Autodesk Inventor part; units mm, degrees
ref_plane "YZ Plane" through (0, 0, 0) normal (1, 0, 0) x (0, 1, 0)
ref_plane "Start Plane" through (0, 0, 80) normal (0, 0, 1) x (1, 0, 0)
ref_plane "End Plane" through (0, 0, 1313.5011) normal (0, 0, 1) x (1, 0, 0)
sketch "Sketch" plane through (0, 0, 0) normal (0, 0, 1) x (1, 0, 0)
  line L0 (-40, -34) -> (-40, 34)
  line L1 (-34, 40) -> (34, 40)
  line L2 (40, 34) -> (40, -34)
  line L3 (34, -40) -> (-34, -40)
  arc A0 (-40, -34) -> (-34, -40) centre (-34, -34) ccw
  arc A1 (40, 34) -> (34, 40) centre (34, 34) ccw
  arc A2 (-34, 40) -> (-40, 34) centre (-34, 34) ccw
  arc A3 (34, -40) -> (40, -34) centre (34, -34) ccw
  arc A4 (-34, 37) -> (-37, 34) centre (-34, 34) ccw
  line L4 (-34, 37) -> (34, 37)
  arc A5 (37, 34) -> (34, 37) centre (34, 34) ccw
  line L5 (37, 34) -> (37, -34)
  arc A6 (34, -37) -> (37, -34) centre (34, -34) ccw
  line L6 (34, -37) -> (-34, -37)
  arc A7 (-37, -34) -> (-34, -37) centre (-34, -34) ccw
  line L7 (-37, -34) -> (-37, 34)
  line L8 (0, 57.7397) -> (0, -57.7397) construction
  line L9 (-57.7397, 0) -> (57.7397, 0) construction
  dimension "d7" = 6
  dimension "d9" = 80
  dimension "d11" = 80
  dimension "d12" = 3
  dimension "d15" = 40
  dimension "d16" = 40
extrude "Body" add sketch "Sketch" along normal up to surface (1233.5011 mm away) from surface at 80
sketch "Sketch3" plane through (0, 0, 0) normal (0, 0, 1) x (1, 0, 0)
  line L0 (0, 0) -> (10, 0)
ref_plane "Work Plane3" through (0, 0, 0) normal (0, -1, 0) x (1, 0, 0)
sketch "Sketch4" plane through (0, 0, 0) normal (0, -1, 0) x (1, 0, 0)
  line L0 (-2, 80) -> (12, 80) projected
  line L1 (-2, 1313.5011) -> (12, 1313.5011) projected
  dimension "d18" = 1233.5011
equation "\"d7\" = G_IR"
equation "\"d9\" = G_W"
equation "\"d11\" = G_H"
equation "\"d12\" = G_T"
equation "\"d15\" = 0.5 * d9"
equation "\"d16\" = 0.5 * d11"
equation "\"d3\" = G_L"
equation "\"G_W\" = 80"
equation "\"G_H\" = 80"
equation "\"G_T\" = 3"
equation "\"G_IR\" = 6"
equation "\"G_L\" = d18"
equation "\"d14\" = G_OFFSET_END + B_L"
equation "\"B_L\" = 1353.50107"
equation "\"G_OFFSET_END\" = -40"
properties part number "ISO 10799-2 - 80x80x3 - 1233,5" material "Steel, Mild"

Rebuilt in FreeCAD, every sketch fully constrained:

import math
import FreeCAD as App
import Part
import Sketcher

V = App.Vector

doc = App.newDocument("Part")
body = doc.addObject("PartDesign::Body", "Body")

sketch1 = body.newObject("Sketcher::SketchObject", "Sketch")
sketch1.AttachmentSupport = (doc.getObject("XY_Plane"), [""])
sketch1.MapMode = "FlatFace"
sketch1.AttachmentOffset = App.Placement(V(0, 0, 80), App.Rotation())
sketch1.addGeometry(Part.LineSegment(V(-40, 34, 0), V(-40, -34, 0)), False)
sketch1.addGeometry(Part.ArcOfCircle(Part.Circle(V(-34, -34, 0), V(0, 0, 1), 6), math.radians(180), math.radians(270)), False)
sketch1.addGeometry(Part.LineSegment(V(-34, -40, 0), V(34, -40, 0)), False)
sketch1.addGeometry(Part.ArcOfCircle(Part.Circle(V(34, -34, 0), V(0, 0, 1), 6), math.radians(-90), math.radians(0)), False)
sketch1.addGeometry(Part.LineSegment(V(40, -34, 0), V(40, 34, 0)), False)
sketch1.addGeometry(Part.ArcOfCircle(Part.Circle(V(34, 34, 0), V(0, 0, 1), 6), math.radians(0), math.radians(90)), False)
sketch1.addGeometry(Part.LineSegment(V(34, 40, 0), V(-34, 40, 0)), False)
sketch1.addGeometry(Part.ArcOfCircle(Part.Circle(V(-34, 34, 0), V(0, 0, 1), 6), math.radians(90), math.radians(180)), False)
sketch1.addGeometry(Part.ArcOfCircle(Part.Circle(V(-34, 34, 0), V(0, 0, 1), 3), math.radians(90), math.radians(180)), False)
sketch1.addGeometry(Part.LineSegment(V(-34, 37, 0), V(34, 37, 0)), False)
sketch1.addGeometry(Part.ArcOfCircle(Part.Circle(V(34, 34, 0), V(0, 0, 1), 3), math.radians(0), math.radians(90)), False)
sketch1.addGeometry(Part.LineSegment(V(37, 34, 0), V(37, -34, 0)), False)
sketch1.addGeometry(Part.ArcOfCircle(Part.Circle(V(34, -34, 0), V(0, 0, 1), 3), math.radians(-90), math.radians(0)), False)
sketch1.addGeometry(Part.LineSegment(V(34, -37, 0), V(-34, -37, 0)), False)
sketch1.addGeometry(Part.ArcOfCircle(Part.Circle(V(-34, -34, 0), V(0, 0, 1), 3), math.radians(180), math.radians(270)), False)
sketch1.addGeometry(Part.LineSegment(V(-37, -34, 0), V(-37, 34, 0)), False)
sketch1.addConstraint(Sketcher.Constraint("Tangent", 0, 2, 1, 1))
sketch1.addConstraint(Sketcher.Constraint("Tangent", 1, 2, 2, 1))
sketch1.addConstraint(Sketcher.Constraint("Tangent", 2, 2, 3, 1))
sketch1.addConstraint(Sketcher.Constraint("Tangent", 3, 2, 4, 1))
sketch1.addConstraint(Sketcher.Constraint("Tangent", 4, 2, 5, 1))
sketch1.addConstraint(Sketcher.Constraint("Tangent", 5, 2, 6, 1))
sketch1.addConstraint(Sketcher.Constraint("Tangent", 6, 2, 7, 1))
sketch1.addConstraint(Sketcher.Constraint("Tangent", 7, 2, 0, 1))
sketch1.addConstraint(Sketcher.Constraint("Tangent", 8, 1, 9, 1))
sketch1.addConstraint(Sketcher.Constraint("Tangent", 9, 2, 10, 2))
sketch1.addConstraint(Sketcher.Constraint("Tangent", 10, 1, 11, 1))
sketch1.addConstraint(Sketcher.Constraint("Tangent", 11, 2, 12, 2))
sketch1.addConstraint(Sketcher.Constraint("Tangent", 12, 1, 13, 1))
sketch1.addConstraint(Sketcher.Constraint("Tangent", 13, 2, 14, 2))
sketch1.addConstraint(Sketcher.Constraint("Tangent", 14, 1, 15, 1))
sketch1.addConstraint(Sketcher.Constraint("Tangent", 15, 2, 8, 2))
sketch1.addConstraint(Sketcher.Constraint("Vertical", 0))
sketch1.addConstraint(Sketcher.Constraint("Horizontal", 2))
sketch1.addConstraint(Sketcher.Constraint("Vertical", 4))
sketch1.addConstraint(Sketcher.Constraint("Horizontal", 6))
sketch1.addConstraint(Sketcher.Constraint("Horizontal", 9))
sketch1.addConstraint(Sketcher.Constraint("Vertical", 11))
sketch1.addConstraint(Sketcher.Constraint("Horizontal", 13))
sketch1.addConstraint(Sketcher.Constraint("Vertical", 15))
sketch1.addConstraint(Sketcher.Constraint("Coincident", 8, 3, 7, 3))
sketch1.addConstraint(Sketcher.Constraint("Coincident", 10, 3, 5, 3))
sketch1.addConstraint(Sketcher.Constraint("Coincident", 12, 3, 3, 3))
sketch1.addConstraint(Sketcher.Constraint("Equal", 1, 3))
sketch1.addConstraint(Sketcher.Constraint("Equal", 3, 5))
sketch1.addConstraint(Sketcher.Constraint("Equal", 5, 7))
sketch1.addConstraint(Sketcher.Constraint("Equal", 12, 14))
sketch1.addConstraint(Sketcher.Constraint("Symmetric", 1, 3, 5, 3, -1, 1))
sketch1.addConstraint(Sketcher.Constraint("Equal", 13, 0))
sketch1.addConstraint(Sketcher.Constraint("Radius", 1, 6.0))
sketch1.addConstraint(Sketcher.Constraint("Radius", 8, 3.0))
sketch1.addConstraint(Sketcher.Constraint("DistanceX", 0, 2, -1, 1, 40.0))
pad1 = body.newObject("PartDesign::Pad", "Pad")
pad1.Profile = sketch1
pad1.Length = 1233.5011

doc.recompute()
